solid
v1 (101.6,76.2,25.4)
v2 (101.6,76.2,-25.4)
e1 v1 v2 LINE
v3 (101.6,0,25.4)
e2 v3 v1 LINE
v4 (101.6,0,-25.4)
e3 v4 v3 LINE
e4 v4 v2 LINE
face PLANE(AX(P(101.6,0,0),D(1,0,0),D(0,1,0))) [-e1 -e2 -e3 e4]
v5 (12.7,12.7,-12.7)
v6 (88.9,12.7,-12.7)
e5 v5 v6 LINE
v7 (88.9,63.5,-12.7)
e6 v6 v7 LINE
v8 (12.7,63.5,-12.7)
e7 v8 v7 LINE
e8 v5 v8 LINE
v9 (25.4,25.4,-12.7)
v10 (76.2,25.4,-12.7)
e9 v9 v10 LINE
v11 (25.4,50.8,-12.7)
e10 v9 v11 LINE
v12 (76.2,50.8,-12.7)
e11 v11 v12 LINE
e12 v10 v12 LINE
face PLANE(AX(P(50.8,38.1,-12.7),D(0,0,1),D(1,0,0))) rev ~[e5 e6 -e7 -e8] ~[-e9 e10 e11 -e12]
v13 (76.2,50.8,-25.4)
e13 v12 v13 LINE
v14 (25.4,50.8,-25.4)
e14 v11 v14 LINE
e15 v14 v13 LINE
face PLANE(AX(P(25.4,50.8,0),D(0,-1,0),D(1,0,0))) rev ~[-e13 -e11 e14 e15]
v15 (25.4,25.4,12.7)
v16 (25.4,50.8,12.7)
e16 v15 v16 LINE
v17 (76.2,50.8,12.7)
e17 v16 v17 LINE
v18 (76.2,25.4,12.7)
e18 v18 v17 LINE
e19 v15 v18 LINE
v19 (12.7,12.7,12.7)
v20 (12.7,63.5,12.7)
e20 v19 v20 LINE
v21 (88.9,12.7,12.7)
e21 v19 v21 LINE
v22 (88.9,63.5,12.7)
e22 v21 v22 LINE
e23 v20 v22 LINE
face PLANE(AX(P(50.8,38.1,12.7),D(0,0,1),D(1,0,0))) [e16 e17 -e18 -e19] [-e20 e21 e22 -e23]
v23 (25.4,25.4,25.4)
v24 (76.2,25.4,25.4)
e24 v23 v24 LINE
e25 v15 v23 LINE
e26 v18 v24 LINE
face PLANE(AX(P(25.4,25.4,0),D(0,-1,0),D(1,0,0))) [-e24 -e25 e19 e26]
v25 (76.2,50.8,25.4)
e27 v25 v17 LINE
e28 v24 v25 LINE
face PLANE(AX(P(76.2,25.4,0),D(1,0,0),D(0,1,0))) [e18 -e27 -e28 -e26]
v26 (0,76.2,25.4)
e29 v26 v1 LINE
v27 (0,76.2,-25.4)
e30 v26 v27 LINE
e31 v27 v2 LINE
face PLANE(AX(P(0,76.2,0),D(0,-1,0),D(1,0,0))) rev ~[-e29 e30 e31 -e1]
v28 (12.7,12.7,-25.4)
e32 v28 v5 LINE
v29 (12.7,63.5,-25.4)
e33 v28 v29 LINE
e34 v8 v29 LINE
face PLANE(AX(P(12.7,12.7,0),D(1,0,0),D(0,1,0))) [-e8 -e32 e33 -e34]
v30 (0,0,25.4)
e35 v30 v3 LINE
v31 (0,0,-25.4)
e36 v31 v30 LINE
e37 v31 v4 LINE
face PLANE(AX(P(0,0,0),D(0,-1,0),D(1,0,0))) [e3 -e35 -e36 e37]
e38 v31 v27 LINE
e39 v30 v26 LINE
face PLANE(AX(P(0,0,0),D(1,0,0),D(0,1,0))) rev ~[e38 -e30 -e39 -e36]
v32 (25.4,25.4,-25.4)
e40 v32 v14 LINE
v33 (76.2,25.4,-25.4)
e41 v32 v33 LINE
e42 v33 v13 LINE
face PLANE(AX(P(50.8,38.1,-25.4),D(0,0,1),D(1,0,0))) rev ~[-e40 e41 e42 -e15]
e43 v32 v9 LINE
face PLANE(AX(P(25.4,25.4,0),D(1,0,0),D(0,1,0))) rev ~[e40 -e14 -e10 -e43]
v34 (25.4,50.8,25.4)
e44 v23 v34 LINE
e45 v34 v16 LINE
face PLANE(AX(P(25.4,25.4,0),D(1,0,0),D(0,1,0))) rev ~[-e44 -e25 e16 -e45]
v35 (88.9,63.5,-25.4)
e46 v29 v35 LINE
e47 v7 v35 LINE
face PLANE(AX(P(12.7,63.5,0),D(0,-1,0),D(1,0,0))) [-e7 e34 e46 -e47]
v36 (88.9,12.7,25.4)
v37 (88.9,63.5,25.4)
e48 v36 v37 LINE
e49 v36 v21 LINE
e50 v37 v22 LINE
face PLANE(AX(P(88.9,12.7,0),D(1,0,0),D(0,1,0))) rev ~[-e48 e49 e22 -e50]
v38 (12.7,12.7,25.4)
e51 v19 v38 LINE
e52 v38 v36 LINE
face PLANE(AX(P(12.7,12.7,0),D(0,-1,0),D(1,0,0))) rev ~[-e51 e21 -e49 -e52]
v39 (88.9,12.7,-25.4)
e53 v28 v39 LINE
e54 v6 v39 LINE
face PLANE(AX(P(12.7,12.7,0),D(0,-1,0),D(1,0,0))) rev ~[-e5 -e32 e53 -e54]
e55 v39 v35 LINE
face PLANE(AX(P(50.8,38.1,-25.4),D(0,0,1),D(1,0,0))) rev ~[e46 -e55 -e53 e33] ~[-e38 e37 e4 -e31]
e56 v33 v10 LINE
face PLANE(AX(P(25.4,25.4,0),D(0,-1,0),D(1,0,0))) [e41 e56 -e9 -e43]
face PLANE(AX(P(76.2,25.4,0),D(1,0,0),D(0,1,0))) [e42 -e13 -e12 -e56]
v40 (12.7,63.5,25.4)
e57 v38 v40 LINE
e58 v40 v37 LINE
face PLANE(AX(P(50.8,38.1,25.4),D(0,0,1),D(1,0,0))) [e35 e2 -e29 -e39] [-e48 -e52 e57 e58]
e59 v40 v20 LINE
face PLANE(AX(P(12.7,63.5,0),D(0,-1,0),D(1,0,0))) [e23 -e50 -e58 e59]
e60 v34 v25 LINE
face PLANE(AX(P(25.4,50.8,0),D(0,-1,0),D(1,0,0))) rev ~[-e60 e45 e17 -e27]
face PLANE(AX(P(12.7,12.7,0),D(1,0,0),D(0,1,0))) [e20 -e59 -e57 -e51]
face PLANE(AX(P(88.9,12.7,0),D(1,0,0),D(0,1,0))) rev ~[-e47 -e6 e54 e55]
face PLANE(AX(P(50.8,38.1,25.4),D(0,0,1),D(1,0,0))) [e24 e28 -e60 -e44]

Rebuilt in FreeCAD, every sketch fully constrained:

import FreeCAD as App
import Part
import Sketcher
from FreeCAD import Vector
Q = App.Units.Quantity


def add_polygon(sketch, points):
    """Adds a closed chain of lines whose ends are joined by coincident constraints."""
    first, n = sketch.GeometryCount, len(points)
    for a, b in zip(points, points[1:] + points[:1]):
        sketch.addGeometry(Part.LineSegment(App.Vector(*a, 0), App.Vector(*b, 0)), False)
    for i in range(n):
        sketch.addConstraint(Sketcher.Constraint("Coincident", first + i, 2, first + (i + 1) % n, 1))

doc = App.newDocument("Part")
body = doc.addObject("PartDesign::Body", "Body")
body.AllowCompound = True

sketch1 = body.newObject("Sketcher::SketchObject", "Sketch")
sketch1.AttachmentSupport = (doc.getObject("XY_Plane"), [""])
sketch1.MapMode = "FlatFace"
add_polygon(sketch1, [(0, 76), (0, 0), (102, 0), (102, 76)])
add_polygon(sketch1, [(89, 13), (13, 13), (13, 64), (89, 64)])
add_polygon(sketch1, [(25, 51), (25, 25), (76, 25), (76, 51)])
sketch1.addConstraint([
    Sketcher.Constraint("Vertical", 0),
    Sketcher.Constraint("Horizontal", 1),
    Sketcher.Constraint("Vertical", 2),
    Sketcher.Constraint("Horizontal", 3),
    Sketcher.Constraint("Horizontal", 4),
    Sketcher.Constraint("Vertical", 5),
    Sketcher.Constraint("Horizontal", 6),
    Sketcher.Constraint("Vertical", 7),
    Sketcher.Constraint("Vertical", 8),
    Sketcher.Constraint("Horizontal", 9),
    Sketcher.Constraint("Vertical", 10),
    Sketcher.Constraint("Horizontal", 11),
    Sketcher.Constraint("Coincident", 0, 2, -1, 1),
    Sketcher.Constraint("Equal", 6, 0),
    Sketcher.Constraint("Equal", 11, 5),
    Sketcher.Constraint("DistanceX", 1, 1, 1, 2, Q("4 in")),
    Sketcher.Constraint("DistanceX", 4, 2, 4, 1, Q("3 in")),
    Sketcher.Constraint("DistanceX", 9, 1, 9, 2, Q("2 in")),
    Sketcher.Constraint("DistanceY", 8, 2, 8, 1, Q("1 in")),
    Sketcher.Constraint("DistanceX", -1, 1, 8, 2, Q("1 in")),
    Sketcher.Constraint("DistanceY", -1, 1, 8, 2, Q("1 in")),
    Sketcher.Constraint("DistanceX", -1, 1, 4, 2, Q("0.5 in")),
    Sketcher.Constraint("DistanceY", -1, 1, 4, 2, Q("0.5 in")),
])
pad1 = body.newObject("PartDesign::Pad", "Pad")
pad1.Profile = sketch1
pad1.Type = "TwoLengths"
pad1.Length = Q("1 in")
pad1.Length2 = Q("1 in")

sketch2 = body.newObject("Sketcher::SketchObject", "Sketch001")
sketch2.AttachmentSupport = (doc.getObject("XY_Plane"), [""])
sketch2.MapMode = "FlatFace"
add_polygon(sketch2, [(13, 64), (13, 13), (89, 13), (89, 64)])
add_polygon(sketch2, [(76, 25), (25, 25), (25, 51), (76, 51)])
sketch2.addConstraint([
    Sketcher.Constraint("Vertical", 0),
    Sketcher.Constraint("Horizontal", 1),
    Sketcher.Constraint("Vertical", 2),
    Sketcher.Constraint("Horizontal", 3),
    Sketcher.Constraint("Horizontal", 4),
    Sketcher.Constraint("Vertical", 5),
    Sketcher.Constraint("Horizontal", 6),
    Sketcher.Constraint("Vertical", 7),
    Sketcher.Constraint("Equal", 6, 0),
    Sketcher.Constraint("DistanceX", 1, 1, 1, 2, Q("3 in")),
    Sketcher.Constraint("DistanceX", 4, 2, 4, 1, Q("2 in")),
    Sketcher.Constraint("DistanceY", 5, 1, 5, 2, Q("1 in")),
    Sketcher.Constraint("DistanceX", -1, 1, 4, 2, Q("1 in")),
    Sketcher.Constraint("DistanceY", -1, 1, 4, 2, Q("1 in")),
    Sketcher.Constraint("DistanceX", -1, 1, 0, 2, Q("0.5 in")),
    Sketcher.Constraint("DistanceY", -1, 1, 0, 2, Q("0.5 in")),
])
pad2 = body.newObject("PartDesign::Pad", "Pad001")
pad2.Profile = sketch2
pad2.Type = "TwoLengths"
pad2.Length = Q("0.5 in")
pad2.Length2 = Q("0.5 in")

doc.recompute()
